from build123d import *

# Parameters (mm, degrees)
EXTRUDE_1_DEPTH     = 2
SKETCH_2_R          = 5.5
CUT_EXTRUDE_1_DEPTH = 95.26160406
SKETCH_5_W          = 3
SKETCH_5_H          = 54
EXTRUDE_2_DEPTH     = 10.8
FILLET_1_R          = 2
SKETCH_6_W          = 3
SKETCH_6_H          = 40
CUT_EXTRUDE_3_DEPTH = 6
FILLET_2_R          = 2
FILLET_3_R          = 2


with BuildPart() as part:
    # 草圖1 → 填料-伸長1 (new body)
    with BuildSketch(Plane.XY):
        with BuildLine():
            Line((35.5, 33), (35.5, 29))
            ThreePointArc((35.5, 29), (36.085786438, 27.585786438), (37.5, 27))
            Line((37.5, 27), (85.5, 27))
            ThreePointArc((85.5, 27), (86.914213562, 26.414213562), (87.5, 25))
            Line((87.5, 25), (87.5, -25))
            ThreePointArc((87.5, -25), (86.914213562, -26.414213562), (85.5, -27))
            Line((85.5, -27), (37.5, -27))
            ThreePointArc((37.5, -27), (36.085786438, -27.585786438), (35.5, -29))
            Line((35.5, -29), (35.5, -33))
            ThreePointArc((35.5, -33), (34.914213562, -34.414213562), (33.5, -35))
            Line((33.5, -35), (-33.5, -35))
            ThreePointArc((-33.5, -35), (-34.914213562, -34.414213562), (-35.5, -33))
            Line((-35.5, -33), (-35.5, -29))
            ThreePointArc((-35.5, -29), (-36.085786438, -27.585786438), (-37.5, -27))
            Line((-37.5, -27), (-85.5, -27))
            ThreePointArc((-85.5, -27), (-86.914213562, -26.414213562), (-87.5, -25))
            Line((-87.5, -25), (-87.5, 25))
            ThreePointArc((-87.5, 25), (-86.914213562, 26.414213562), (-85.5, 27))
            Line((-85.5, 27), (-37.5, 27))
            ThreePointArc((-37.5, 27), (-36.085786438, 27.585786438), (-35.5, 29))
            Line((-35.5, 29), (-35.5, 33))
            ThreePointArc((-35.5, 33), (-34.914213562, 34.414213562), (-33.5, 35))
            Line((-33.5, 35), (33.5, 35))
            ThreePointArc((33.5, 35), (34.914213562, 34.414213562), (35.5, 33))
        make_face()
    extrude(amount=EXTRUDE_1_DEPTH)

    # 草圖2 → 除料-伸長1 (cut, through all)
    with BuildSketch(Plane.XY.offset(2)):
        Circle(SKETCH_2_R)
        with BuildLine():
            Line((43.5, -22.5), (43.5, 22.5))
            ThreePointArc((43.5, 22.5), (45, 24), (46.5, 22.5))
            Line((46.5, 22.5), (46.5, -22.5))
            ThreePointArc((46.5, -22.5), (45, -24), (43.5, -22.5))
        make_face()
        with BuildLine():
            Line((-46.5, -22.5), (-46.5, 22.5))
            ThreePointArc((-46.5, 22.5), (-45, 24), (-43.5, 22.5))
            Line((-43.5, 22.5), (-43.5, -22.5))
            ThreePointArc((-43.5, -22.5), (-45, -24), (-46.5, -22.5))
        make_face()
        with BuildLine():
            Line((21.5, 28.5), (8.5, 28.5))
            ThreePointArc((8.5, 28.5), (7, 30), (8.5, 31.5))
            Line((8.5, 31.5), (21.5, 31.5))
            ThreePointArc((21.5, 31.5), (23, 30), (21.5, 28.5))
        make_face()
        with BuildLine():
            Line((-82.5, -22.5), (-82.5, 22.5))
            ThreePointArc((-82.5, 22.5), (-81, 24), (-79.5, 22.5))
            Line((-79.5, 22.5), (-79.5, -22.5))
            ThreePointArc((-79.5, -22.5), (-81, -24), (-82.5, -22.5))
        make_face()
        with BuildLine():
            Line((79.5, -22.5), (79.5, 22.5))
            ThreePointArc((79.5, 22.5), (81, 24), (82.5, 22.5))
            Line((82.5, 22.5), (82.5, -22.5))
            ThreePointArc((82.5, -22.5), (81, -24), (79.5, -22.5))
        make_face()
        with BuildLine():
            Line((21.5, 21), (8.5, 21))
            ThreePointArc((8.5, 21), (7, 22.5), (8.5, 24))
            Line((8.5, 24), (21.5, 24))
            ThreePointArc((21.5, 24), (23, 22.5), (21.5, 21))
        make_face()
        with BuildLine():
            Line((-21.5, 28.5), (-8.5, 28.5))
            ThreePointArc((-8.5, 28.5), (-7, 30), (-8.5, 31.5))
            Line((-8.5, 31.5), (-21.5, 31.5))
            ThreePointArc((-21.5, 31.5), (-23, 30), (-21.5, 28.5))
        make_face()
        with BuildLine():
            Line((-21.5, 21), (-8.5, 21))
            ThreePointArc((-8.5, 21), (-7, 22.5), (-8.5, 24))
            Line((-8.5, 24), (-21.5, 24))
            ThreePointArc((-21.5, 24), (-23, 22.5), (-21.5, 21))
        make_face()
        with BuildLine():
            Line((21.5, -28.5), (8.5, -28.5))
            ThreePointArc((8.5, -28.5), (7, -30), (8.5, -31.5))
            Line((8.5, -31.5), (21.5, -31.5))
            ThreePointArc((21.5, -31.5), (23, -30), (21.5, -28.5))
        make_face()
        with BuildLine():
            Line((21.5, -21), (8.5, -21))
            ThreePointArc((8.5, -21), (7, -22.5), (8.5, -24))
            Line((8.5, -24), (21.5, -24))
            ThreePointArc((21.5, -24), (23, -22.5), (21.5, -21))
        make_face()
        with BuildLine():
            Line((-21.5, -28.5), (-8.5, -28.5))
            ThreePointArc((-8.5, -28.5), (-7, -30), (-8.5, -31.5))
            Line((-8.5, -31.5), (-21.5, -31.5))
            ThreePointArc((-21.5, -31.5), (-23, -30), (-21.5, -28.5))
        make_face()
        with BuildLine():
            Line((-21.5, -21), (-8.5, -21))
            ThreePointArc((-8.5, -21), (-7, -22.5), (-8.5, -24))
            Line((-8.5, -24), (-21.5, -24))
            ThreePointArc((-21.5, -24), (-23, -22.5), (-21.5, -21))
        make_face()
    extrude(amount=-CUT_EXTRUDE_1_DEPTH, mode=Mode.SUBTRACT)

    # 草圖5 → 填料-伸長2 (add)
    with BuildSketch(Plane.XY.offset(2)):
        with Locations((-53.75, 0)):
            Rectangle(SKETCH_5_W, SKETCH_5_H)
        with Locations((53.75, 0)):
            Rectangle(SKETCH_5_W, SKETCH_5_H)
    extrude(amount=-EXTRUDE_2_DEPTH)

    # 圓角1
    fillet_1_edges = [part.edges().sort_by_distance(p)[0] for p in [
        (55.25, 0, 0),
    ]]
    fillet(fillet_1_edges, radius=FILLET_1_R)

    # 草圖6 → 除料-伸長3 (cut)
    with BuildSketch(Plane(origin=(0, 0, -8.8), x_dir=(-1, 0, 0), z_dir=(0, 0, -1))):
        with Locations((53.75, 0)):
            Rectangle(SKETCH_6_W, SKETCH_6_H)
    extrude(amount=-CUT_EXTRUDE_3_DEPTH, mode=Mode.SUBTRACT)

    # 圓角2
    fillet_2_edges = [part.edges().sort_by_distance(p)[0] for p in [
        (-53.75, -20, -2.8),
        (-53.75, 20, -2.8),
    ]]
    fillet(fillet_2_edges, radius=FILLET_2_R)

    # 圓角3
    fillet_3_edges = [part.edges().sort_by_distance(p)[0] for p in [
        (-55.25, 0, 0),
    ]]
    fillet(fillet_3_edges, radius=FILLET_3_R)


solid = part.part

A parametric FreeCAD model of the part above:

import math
import FreeCAD as App
import Part
import Sketcher
Q = App.Units.Quantity


def edges_at(feature, points):
    """Names of the edges that pass closest to the given points."""
    edges = feature.Shape.Edges
    near = lambda p: min(range(len(edges)), key=lambda i: edges[i].distToShape(Part.Vertex(*p))[0])
    return sorted({f"Edge{near(p) + 1}" for p in points})

doc = App.newDocument("Part")
params = doc.addObject("Spreadsheet::Sheet", "Params")
for row, (alias, value) in enumerate([
    ("sketch1_radius", "2 mm"),
    ("sketch1_width", "67 mm"),
    ("sketch1_width2", "48 mm"),
    ("sketch1_height", "4 mm"),
    ("sketch1_height2", "50 mm"),
    ("pad1_length", "2 mm"),
    ("sketch2_diameter", "11 mm"),
    ("sketch2_radius", "1.5 mm"),
    ("sketch2_width", "13 mm"),
    ("sketch2_height", "45 mm"),
    ("sketch3_width", "3 mm"),
    ("sketch3_height", "54 mm"),
    ("pad2_length", "10.8 mm"),
    ("fillet_radius", "2 mm"),
    ("sketch4_width", "3 mm"),
    ("sketch4_height", "40 mm"),
    ("pocket2_length", "6 mm"),
    ("fillet2_radius", "2 mm"),
    ("fillet3_radius", "2 mm"),
], start=1):
    params.set(f"A{row}", alias)
    params.set(f"B{row}", "=" + value)
    params.setAlias(f"B{row}", alias)

body = doc.addObject("PartDesign::Body", "Body")

# Sketch on XY plane
sketch1 = body.newObject("Sketcher::SketchObject", "Sketch")
sketch1.AttachmentSupport = (doc.getObject("XY_Plane"), [""])
sketch1.MapMode = "FlatFace"
sketch1.addGeometry([
    Part.LineSegment(App.Vector(35.5, 29, 0), App.Vector(35.5, 33, 0)),  # 0
    Part.ArcOfCircle(Part.Circle(App.Vector(33.5, 33, 0), App.Vector(0, 0, 1), 2), math.radians(0), math.radians(90)),  # 1
    Part.LineSegment(App.Vector(33.5, 35, 0), App.Vector(-33.5, 35, 0)),  # 2
    Part.ArcOfCircle(Part.Circle(App.Vector(-33.5, 33, 0), App.Vector(0, 0, 1), 2), math.radians(90), math.radians(180)),  # 3
    Part.LineSegment(App.Vector(-35.5, 33, 0), App.Vector(-35.5, 29, 0)),  # 4
    Part.ArcOfCircle(Part.Circle(App.Vector(-37.5, 29, 0), App.Vector(0, 0, 1), 2), math.radians(-90), math.radians(0)),  # 5
    Part.LineSegment(App.Vector(-37.5, 27, 0), App.Vector(-85.5, 27, 0)),  # 6
    Part.ArcOfCircle(Part.Circle(App.Vector(-85.5, 25, 0), App.Vector(0, 0, 1), 2), math.radians(90), math.radians(180)),  # 7
    Part.LineSegment(App.Vector(-87.5, 25, 0), App.Vector(-87.5, -25, 0)),  # 8
    Part.ArcOfCircle(Part.Circle(App.Vector(-85.5, -25, 0), App.Vector(0, 0, 1), 2), math.radians(-180), math.radians(-90)),  # 9
    Part.LineSegment(App.Vector(-85.5, -27, 0), App.Vector(-37.5, -27, 0)),  # 10
    Part.ArcOfCircle(Part.Circle(App.Vector(-37.5, -29, 0), App.Vector(0, 0, 1), 2), math.radians(0), math.radians(90)),  # 11
    Part.LineSegment(App.Vector(-35.5, -29, 0), App.Vector(-35.5, -33, 0)),  # 12
    Part.ArcOfCircle(Part.Circle(App.Vector(-33.5, -33, 0), App.Vector(0, 0, 1), 2), math.radians(-180), math.radians(-90)),  # 13
    Part.LineSegment(App.Vector(-33.5, -35, 0), App.Vector(33.5, -35, 0)),  # 14
    Part.ArcOfCircle(Part.Circle(App.Vector(33.5, -33, 0), App.Vector(0, 0, 1), 2), math.radians(-90), math.radians(0)),  # 15
    Part.LineSegment(App.Vector(35.5, -33, 0), App.Vector(35.5, -29, 0)),  # 16
    Part.ArcOfCircle(Part.Circle(App.Vector(37.5, -29, 0), App.Vector(0, 0, 1), 2), math.radians(90), math.radians(180)),  # 17
    Part.LineSegment(App.Vector(37.5, -27, 0), App.Vector(85.5, -27, 0)),  # 18
    Part.ArcOfCircle(Part.Circle(App.Vector(85.5, -25, 0), App.Vector(0, 0, 1), 2), math.radians(-90), math.radians(0)),  # 19
    Part.LineSegment(App.Vector(87.5, -25, 0), App.Vector(87.5, 25, 0)),  # 20
    Part.ArcOfCircle(Part.Circle(App.Vector(85.5, 25, 0), App.Vector(0, 0, 1), 2), math.radians(0), math.radians(90)),  # 21
    Part.LineSegment(App.Vector(85.5, 27, 0), App.Vector(37.5, 27, 0)),  # 22
    Part.ArcOfCircle(Part.Circle(App.Vector(37.5, 29, 0), App.Vector(0, 0, 1), 2), math.radians(-180), math.radians(-90)),  # 23
], False)
sketch1.addConstraint([
    Sketcher.Constraint("Tangent", 0, 2, 1, 1),
    Sketcher.Constraint("Tangent", 1, 2, 2, 1),
    Sketcher.Constraint("Tangent", 2, 2, 3, 1),
    Sketcher.Constraint("Tangent", 3, 2, 4, 1),
    Sketcher.Constraint("Tangent", 4, 2, 5, 2),
    Sketcher.Constraint("Tangent", 5, 1, 6, 1),
    Sketcher.Constraint("Tangent", 6, 2, 7, 1),
    Sketcher.Constraint("Tangent", 7, 2, 8, 1),
    Sketcher.Constraint("Tangent", 8, 2, 9, 1),
    Sketcher.Constraint("Tangent", 9, 2, 10, 1),
    Sketcher.Constraint("Tangent", 10, 2, 11, 2),
    Sketcher.Constraint("Tangent", 11, 1, 12, 1),
    Sketcher.Constraint("Tangent", 12, 2, 13, 1),
    Sketcher.Constraint("Tangent", 13, 2, 14, 1),
    Sketcher.Constraint("Tangent", 14, 2, 15, 1),
    Sketcher.Constraint("Tangent", 15, 2, 16, 1),
    Sketcher.Constraint("Tangent", 16, 2, 17, 2),
    Sketcher.Constraint("Tangent", 17, 1, 18, 1),
    Sketcher.Constraint("Tangent", 18, 2, 19, 1),
    Sketcher.Constraint("Tangent", 19, 2, 20, 1),
    Sketcher.Constraint("Tangent", 20, 2, 21, 1),
    Sketcher.Constraint("Tangent", 21, 2, 22, 1),
    Sketcher.Constraint("Tangent", 22, 2, 23, 2),
    Sketcher.Constraint("Tangent", 23, 1, 0, 1),
    Sketcher.Constraint("Vertical", 0),
    Sketcher.Constraint("Horizontal", 2),
    Sketcher.Constraint("Vertical", 4),
    Sketcher.Constraint("Horizontal", 6),
    Sketcher.Constraint("Vertical", 8),
    Sketcher.Constraint("Horizontal", 10),
    Sketcher.Constraint("Vertical", 12),
    Sketcher.Constraint("Horizontal", 14),
    Sketcher.Constraint("Vertical", 16),
    Sketcher.Constraint("Horizontal", 18),
    Sketcher.Constraint("Vertical", 20),
    Sketcher.Constraint("Horizontal", 22),
    Sketcher.Constraint("Equal", 1, 3),
    Sketcher.Constraint("Equal", 3, 5),
    Sketcher.Constraint("Equal", 5, 7),
    Sketcher.Constraint("Equal", 7, 9),
    Sketcher.Constraint("Equal", 9, 11),
    Sketcher.Constraint("Equal", 11, 13),
    Sketcher.Constraint("Equal", 13, 15),
    Sketcher.Constraint("Equal", 15, 17),
    Sketcher.Constraint("Equal", 17, 19),
    Sketcher.Constraint("Equal", 19, 21),
    Sketcher.Constraint("Equal", 21, 23),
    Sketcher.Constraint("Symmetric", 1, 3, 13, 3, -1, 1),
    Sketcher.Constraint("Symmetric", 5, 3, 17, 3, -1, 1),
    Sketcher.Constraint("Symmetric", 9, 3, 21, 3, -1, 1),
    Sketcher.Constraint("Symmetric", 11, 3, 17, 3, -2),
    Sketcher.Constraint("Radius", 1, Q("2 mm")),
    Sketcher.Constraint("DistanceX", 2, 2, 2, 1, Q("67 mm")),
    Sketcher.Constraint("DistanceX", 6, 2, 6, 1, Q("48 mm")),
    Sketcher.Constraint("DistanceY", 0, 1, 0, 2, Q("4 mm")),
    Sketcher.Constraint("DistanceY", 8, 2, 8, 1, Q("50 mm")),
])
sketch1.setExpression("Constraints[51]", "Params.sketch1_radius")
sketch1.setExpression("Constraints[52]", "Params.sketch1_width")
sketch1.setExpression("Constraints[53]", "Params.sketch1_width2")
sketch1.setExpression("Constraints[54]", "Params.sketch1_height")
sketch1.setExpression("Constraints[55]", "Params.sketch1_height2")
pad1 = body.newObject("PartDesign::Pad", "Pad")
pad1.Profile = sketch1
pad1.setExpression("Length", "Params.pad1_length")

# Sketch on XY plane
sketch2 = body.newObject("Sketcher::SketchObject", "Sketch001")
sketch2.AttachmentSupport = (doc.getObject("XY_Plane"), [""])
sketch2.MapMode = "FlatFace"
sketch2.AttachmentOffset = App.Placement(App.Vector(0, 0, 2), App.Rotation())
sketch2.addGeometry([
    Part.Circle(App.Vector(0, 0, 0), App.Vector(0, 0, 1), 5.5),  # 0
    Part.LineSegment(App.Vector(43.5, 22.5, 0), App.Vector(43.5, -22.5, 0)),  # 1
    Part.ArcOfCircle(Part.Circle(App.Vector(45, -22.5, 0), App.Vector(0, 0, 1), 1.5), math.radians(180), math.radians(360)),  # 2
    Part.LineSegment(App.Vector(46.5, -22.5, 0), App.Vector(46.5, 22.5, 0)),  # 3
    Part.ArcOfCircle(Part.Circle(App.Vector(45, 22.5, 0), App.Vector(0, 0, 1), 1.5), math.radians(0), math.radians(180)),  # 4
    Part.LineSegment(App.Vector(-46.5, 22.5, 0), App.Vector(-46.5, -22.5, 0)),  # 5
    Part.ArcOfCircle(Part.Circle(App.Vector(-45, -22.5, 0), App.Vector(0, 0, 1), 1.5), math.radians(180), math.radians(360)),  # 6
    Part.LineSegment(App.Vector(-43.5, -22.5, 0), App.Vector(-43.5, 22.5, 0)),  # 7
    Part.ArcOfCircle(Part.Circle(App.Vector(-45, 22.5, 0), App.Vector(0, 0, 1), 1.5), math.radians(0), math.radians(180)),  # 8
    Part.LineSegment(App.Vector(8.5, 28.5, 0), App.Vector(21.5, 28.5, 0)),  # 9
    Part.ArcOfCircle(Part.Circle(App.Vector(21.5, 30, 0), App.Vector(0, 0, 1), 1.5), math.radians(-90), math.radians(90)),  # 10
    Part.LineSegment(App.Vector(21.5, 31.5, 0), App.Vector(8.5, 31.5, 0)),  # 11
    Part.ArcOfCircle(Part.Circle(App.Vector(8.5, 30, 0), App.Vector(0, 0, 1), 1.5), math.radians(90), math.radians(270)),  # 12
    Part.LineSegment(App.Vector(-82.5, 22.5, 0), App.Vector(-82.5, -22.5, 0)),  # 13
    Part.ArcOfCircle(Part.Circle(App.Vector(-81, -22.5, 0), App.Vector(0, 0, 1), 1.5), math.radians(180), math.radians(360)),  # 14
    Part.LineSegment(App.Vector(-79.5, -22.5, 0), App.Vector(-79.5, 22.5, 0)),  # 15
    Part.ArcOfCircle(Part.Circle(App.Vector(-81, 22.5, 0), App.Vector(0, 0, 1), 1.5), math.radians(0), math.radians(180)),  # 16
    Part.LineSegment(App.Vector(79.5, 22.5, 0), App.Vector(79.5, -22.5, 0)),  # 17
    Part.ArcOfCircle(Part.Circle(App.Vector(81, -22.5, 0), App.Vector(0, 0, 1), 1.5), math.radians(180), math.radians(360)),  # 18
    Part.LineSegment(App.Vector(82.5, -22.5, 0), App.Vector(82.5, 22.5, 0)),  # 19
    Part.ArcOfCircle(Part.Circle(App.Vector(81, 22.5, 0), App.Vector(0, 0, 1), 1.5), math.radians(0), math.radians(180)),  # 20
    Part.LineSegment(App.Vector(8.5, 21, 0), App.Vector(21.5, 21, 0)),  # 21
    Part.ArcOfCircle(Part.Circle(App.Vector(21.5, 22.5, 0), App.Vector(0, 0, 1), 1.5), math.radians(-90), math.radians(90)),  # 22
    Part.LineSegment(App.Vector(21.5, 24, 0), App.Vector(8.5, 24, 0)),  # 23
    Part.ArcOfCircle(Part.Circle(App.Vector(8.5, 22.5, 0), App.Vector(0, 0, 1), 1.5), math.radians(90), math.radians(270)),  # 24
    Part.LineSegment(App.Vector(-21.5, 28.5, 0), App.Vector(-8.5, 28.5, 0)),  # 25
    Part.ArcOfCircle(Part.Circle(App.Vector(-8.5, 30, 0), App.Vector(0, 0, 1), 1.5), math.radians(-90), math.radians(90)),  # 26
    Part.LineSegment(App.Vector(-8.5, 31.5, 0), App.Vector(-21.5, 31.5, 0)),  # 27
    Part.ArcOfCircle(Part.Circle(App.Vector(-21.5, 30, 0), App.Vector(0, 0, 1), 1.5), math.radians(90), math.radians(270)),  # 28
    Part.LineSegment(App.Vector(-21.5, 21, 0), App.Vector(-8.5, 21, 0)),  # 29
    Part.ArcOfCircle(Part.Circle(App.Vector(-8.5, 22.5, 0), App.Vector(0, 0, 1), 1.5), math.radians(-90), math.radians(90)),  # 30
    Part.LineSegment(App.Vector(-8.5, 24, 0), App.Vector(-21.5, 24, 0)),  # 31
    Part.ArcOfCircle(Part.Circle(App.Vector(-21.5, 22.5, 0), App.Vector(0, 0, 1), 1.5), math.radians(90), math.radians(270)),  # 32
    Part.LineSegment(App.Vector(21.5, -28.5, 0), App.Vector(8.5, -28.5, 0)),  # 33
    Part.ArcOfCircle(Part.Circle(App.Vector(8.5, -30, 0), App.Vector(0, 0, 1), 1.5), math.radians(90), math.radians(270)),  # 34
    Part.LineSegment(App.Vector(8.5, -31.5, 0), App.Vector(21.5, -31.5, 0)),  # 35
    Part.ArcOfCircle(Part.Circle(App.Vector(21.5, -30, 0), App.Vector(0, 0, 1), 1.5), math.radians(-90), math.radians(90)),  # 36
    Part.LineSegment(App.Vector(21.5, -21, 0), App.Vector(8.5, -21, 0)),  # 37
    Part.ArcOfCircle(Part.Circle(App.Vector(8.5, -22.5, 0), App.Vector(0, 0, 1), 1.5), math.radians(90), math.radians(270)),  # 38
    Part.LineSegment(App.Vector(8.5, -24, 0), App.Vector(21.5, -24, 0)),  # 39
    Part.ArcOfCircle(Part.Circle(App.Vector(21.5, -22.5, 0), App.Vector(0, 0, 1), 1.5), math.radians(-90), math.radians(90)),  # 40
    Part.LineSegment(App.Vector(-8.5, -28.5, 0), App.Vector(-21.5, -28.5, 0)),  # 41
    Part.ArcOfCircle(Part.Circle(App.Vector(-21.5, -30, 0), App.Vector(0, 0, 1), 1.5), math.radians(90), math.radians(270)),  # 42
    Part.LineSegment(App.Vector(-21.5, -31.5, 0), App.Vector(-8.5, -31.5, 0)),  # 43
    Part.ArcOfCircle(Part.Circle(App.Vector(-8.5, -30, 0), App.Vector(0, 0, 1), 1.5), math.radians(-90), math.radians(90)),  # 44
    Part.LineSegment(App.Vector(-8.5, -21, 0), App.Vector(-21.5, -21, 0)),  # 45
    Part.ArcOfCircle(Part.Circle(App.Vector(-21.5, -22.5, 0), App.Vector(0, 0, 1), 1.5), math.radians(90), math.radians(270)),  # 46
    Part.LineSegment(App.Vector(-21.5, -24, 0), App.Vector(-8.5, -24, 0)),  # 47
    Part.ArcOfCircle(Part.Circle(App.Vector(-8.5, -22.5, 0), App.Vector(0, 0, 1), 1.5), math.radians(-90), math.radians(90)),  # 48
], False)
sketch2.addConstraint([
    Sketcher.Constraint("Tangent", 1, 2, 2, 1),
    Sketcher.Constraint("Tangent", 2, 2, 3, 1),
    Sketcher.Constraint("Tangent", 3, 2, 4, 1),
    Sketcher.Constraint("Tangent", 4, 2, 1, 1),
    Sketcher.Constraint("Tangent", 5, 2, 6, 1),
    Sketcher.Constraint("Tangent", 6, 2, 7, 1),
    Sketcher.Constraint("Tangent", 7, 2, 8, 1),
    Sketcher.Constraint("Tangent", 8, 2, 5, 1),
    Sketcher.Constraint("Tangent", 9, 2, 10, 1),
    Sketcher.Constraint("Tangent", 10, 2, 11, 1),
    Sketcher.Constraint("Tangent", 11, 2, 12, 1),
    Sketcher.Constraint("Tangent", 12, 2, 9, 1),
    Sketcher.Constraint("Tangent", 13, 2, 14, 1),
    Sketcher.Constraint("Tangent", 14, 2, 15, 1),
    Sketcher.Constraint("Tangent", 15, 2, 16, 1),
    Sketcher.Constraint("Tangent", 16, 2, 13, 1),
    Sketcher.Constraint("Tangent", 17, 2, 18, 1),
    Sketcher.Constraint("Tangent", 18, 2, 19, 1),
    Sketcher.Constraint("Tangent", 19, 2, 20, 1),
    Sketcher.Constraint("Tangent", 20, 2, 17, 1),
    Sketcher.Constraint("Tangent", 21, 2, 22, 1),
    Sketcher.Constraint("Tangent", 22, 2, 23, 1),
    Sketcher.Constraint("Tangent", 23, 2, 24, 1),
    Sketcher.Constraint("Tangent", 24, 2, 21, 1),
    Sketcher.Constraint("Tangent", 25, 2, 26, 1),
    Sketcher.Constraint("Tangent", 26, 2, 27, 1),
    Sketcher.Constraint("Tangent", 27, 2, 28, 1),
    Sketcher.Constraint("Tangent", 28, 2, 25, 1),
    Sketcher.Constraint("Tangent", 29, 2, 30, 1),
    Sketcher.Constraint("Tangent", 30, 2, 31, 1),
    Sketcher.Constraint("Tangent", 31, 2, 32, 1),
    Sketcher.Constraint("Tangent", 32, 2, 29, 1),
    Sketcher.Constraint("Tangent", 33, 2, 34, 1),
    Sketcher.Constraint("Tangent", 34, 2, 35, 1),
    Sketcher.Constraint("Tangent", 35, 2, 36, 1),
    Sketcher.Constraint("Tangent", 36, 2, 33, 1),
    Sketcher.Constraint("Tangent", 37, 2, 38, 1),
    Sketcher.Constraint("Tangent", 38, 2, 39, 1),
    Sketcher.Constraint("Tangent", 39, 2, 40, 1),
    Sketcher.Constraint("Tangent", 40, 2, 37, 1),
    Sketcher.Constraint("Tangent", 41, 2, 42, 1),
    Sketcher.Constraint("Tangent", 42, 2, 43, 1),
    Sketcher.Constraint("Tangent", 43, 2, 44, 1),
    Sketcher.Constraint("Tangent", 44, 2, 41, 1),
    Sketcher.Constraint("Tangent", 45, 2, 46, 1),
    Sketcher.Constraint("Tangent", 46, 2, 47, 1),
    Sketcher.Constraint("Tangent", 47, 2, 48, 1),
    Sketcher.Constraint("Tangent", 48, 2, 45, 1),
    Sketcher.Constraint("Vertical", 1),
    Sketcher.Constraint("Vertical", 3),
    Sketcher.Constraint("Vertical", 5),
    Sketcher.Constraint("Vertical", 7),
    Sketcher.Constraint("Horizontal", 9),
    Sketcher.Constraint("Horizontal", 11),
    Sketcher.Constraint("Vertical", 13),
    Sketcher.Constraint("Vertical", 15),
    Sketcher.Constraint("Vertical", 17),
    Sketcher.Constraint("Vertical", 19),
    Sketcher.Constraint("Horizontal", 21),
    Sketcher.Constraint("Horizontal", 23),
    Sketcher.Constraint("Horizontal", 25),
    Sketcher.Constraint("Horizontal", 27),
    Sketcher.Constraint("Horizontal", 29),
    Sketcher.Constraint("Horizontal", 31),
    Sketcher.Constraint("Horizontal", 33),
    Sketcher.Constraint("Horizontal", 35),
    Sketcher.Constraint("Horizontal", 37),
    Sketcher.Constraint("Horizontal", 39),
    Sketcher.Constraint("Horizontal", 41),
    Sketcher.Constraint("Horizontal", 43),
    Sketcher.Constraint("Horizontal", 45),
    Sketcher.Constraint("Horizontal", 47),
    Sketcher.Constraint("Coincident", 0, 3, -1, 1),
    Sketcher.Constraint("Equal", 4, 6),
    Sketcher.Constraint("Equal", 8, 10),
    Sketcher.Constraint("Equal", 12, 14),
    Sketcher.Constraint("Equal", 16, 18),
    Sketcher.Constraint("Equal", 20, 22),
    Sketcher.Constraint("Equal", 24, 26),
    Sketcher.Constraint("Equal", 28, 30),
    Sketcher.Constraint("Equal", 32, 34),
    Sketcher.Constraint("Equal", 36, 38),
    Sketcher.Constraint("Equal", 40, 42),
    Sketcher.Constraint("Equal", 44, 46),
    Sketcher.Constraint("Symmetric", 4, 3, 6, 3, -1, 1),
    Sketcher.Constraint("Symmetric", 16, 3, 18, 3, -1, 1),
    Sketcher.Constraint("Symmetric", 26, 3, 34, 3, -1, 1),
    Sketcher.Constraint("Symmetric", 30, 3, 38, 3, -1, 1),
    Sketcher.Constraint("Symmetric", 10, 3, 42, 3, -1, 1),
    Sketcher.Constraint("Symmetric", 22, 3, 46, 3, -1, 1),
    Sketcher.Constraint("Symmetric", 12, 3, 26, 3, -2),
    Sketcher.Constraint("Symmetric", 24, 3, 30, 3, -2),
    Sketcher.Constraint("Horizontal", 2, 3, 6, 3),
    Sketcher.Constraint("Horizontal", 4, 3, 8, 3),
    Sketcher.Constraint("Horizontal", 6, 3, 14, 3),
    Sketcher.Constraint("Horizontal", 8, 3, 16, 3),
    Sketcher.Constraint("Horizontal", 16, 3, 20, 3),
    Sketcher.Constraint("Horizontal", 20, 3, 22, 3),
    Sketcher.Constraint("Vertical", 10, 3, 22, 3),
    Sketcher.Constraint("Vertical", 12, 3, 24, 3),
    Sketcher.Constraint("Vertical", 28, 3, 32, 3),
    Sketcher.Constraint("Vertical", 22, 3, 36, 3),
    Sketcher.Constraint("Vertical", 36, 3, 40, 3),
    Sketcher.Constraint("Vertical", 32, 3, 42, 3),
    Sketcher.Constraint("Vertical", 30, 3, 44, 3),
    Sketcher.Constraint("Vertical", 44, 3, 48, 3),
    Sketcher.Constraint("Diameter", 0, Q("11 mm")),
    Sketcher.Constraint("Radius", 2, Q("1.5 mm")),
    Sketcher.Constraint("DistanceX", 9, 1, 9, 2, Q("13 mm")),
    Sketcher.Constraint("DistanceY", 1, 2, 1, 1, Q("45 mm")),
    Sketcher.Constraint("DistanceX", -1, 1, 2, 3, Q("45 mm")),
    Sketcher.Constraint("DistanceY", -1, 1, 10, 3, Q("30 mm")),
    Sketcher.Constraint("DistanceX", 14, 3, -1, 1, Q("81 mm")),
    Sketcher.Constraint("DistanceX", -1, 1, 10, 3, Q("21.5 mm")),
])
sketch2.setExpression("Constraints[106]", "Params.sketch2_diameter")
sketch2.setExpression("Constraints[107]", "Params.sketch2_radius")
sketch2.setExpression("Constraints[108]", "Params.sketch2_width")
sketch2.setExpression("Constraints[109]", "Params.sketch2_height")
pocket1 = body.newObject("PartDesign::Pocket", "Pocket")
pocket1.Profile = sketch2
pocket1.Type = "ThroughAll"

# Sketch on XY plane
sketch3 = body.newObject("Sketcher::SketchObject", "Sketch002")
sketch3.AttachmentSupport = (doc.getObject("XY_Plane"), [""])
sketch3.MapMode = "FlatFace"
sketch3.AttachmentOffset = App.Placement(App.Vector(0, 0, 2), App.Rotation())
sketch3.addGeometry([
    Part.LineSegment(App.Vector(-55.2, 27, 0), App.Vector(-55.2, -27, 0)),  # 0
    Part.LineSegment(App.Vector(-55.2, -27, 0), App.Vector(-52.2, -27, 0)),  # 1
    Part.LineSegment(App.Vector(-52.2, -27, 0), App.Vector(-52.2, 27, 0)),  # 2
    Part.LineSegment(App.Vector(-52.2, 27, 0), App.Vector(-55.2, 27, 0)),  # 3
    Part.LineSegment(App.Vector(52.2, 27, 0), App.Vector(52.2, -27, 0)),  # 4
    Part.LineSegment(App.Vector(52.2, -27, 0), App.Vector(55.2, -27, 0)),  # 5
    Part.LineSegment(App.Vector(55.2, -27, 0), App.Vector(55.2, 27, 0)),  # 6
    Part.LineSegment(App.Vector(55.2, 27, 0), App.Vector(52.2, 27, 0)),  # 7
], False)
sketch3.addConstraint([
    Sketcher.Constraint("Coincident", 0, 2, 1, 1),
    Sketcher.Constraint("Coincident", 1, 2, 2, 1),
    Sketcher.Constraint("Coincident", 2, 2, 3, 1),
    Sketcher.Constraint("Coincident", 3, 2, 0, 1),
    Sketcher.Constraint("Coincident", 4, 2, 5, 1),
    Sketcher.Constraint("Coincident", 5, 2, 6, 1),
    Sketcher.Constraint("Coincident", 6, 2, 7, 1),
    Sketcher.Constraint("Coincident", 7, 2, 4, 1),
    Sketcher.Constraint("Vertical", 0),
    Sketcher.Constraint("Horizontal", 1),
    Sketcher.Constraint("Vertical", 2),
    Sketcher.Constraint("Horizontal", 3),
    Sketcher.Constraint("Vertical", 4),
    Sketcher.Constraint("Horizontal", 5),
    Sketcher.Constraint("Vertical", 6),
    Sketcher.Constraint("Horizontal", 7),
    Sketcher.Constraint("Symmetric", 2, 2, 4, 2, -1, 1),
    Sketcher.Constraint("Symmetric", 0, 2, 6, 2, -1, 1),
    Sketcher.Constraint("Horizontal", 1, 2, 4, 2),
    Sketcher.Constraint("DistanceX", 1, 1, 1, 2, Q("3 mm")),
    Sketcher.Constraint("DistanceY", 0, 2, 0, 1, Q("54 mm")),
    Sketcher.Constraint("DistanceX", 1, 2, 4, 2, Q("104.5 mm")),
])
sketch3.setExpression("Constraints[19]", "Params.sketch3_width")
sketch3.setExpression("Constraints[20]", "Params.sketch3_height")
pad2 = body.newObject("PartDesign::Pad", "Pad001")
pad2.Profile = sketch3
pad2.setExpression("Length", "Params.pad2_length")
pad2.Reversed = True
doc.recompute()

fillet = body.newObject("PartDesign::Fillet", "Fillet")
fillet.Base = (pad2, edges_at(pad2, [(55.25, 0, 0)]))
fillet.setExpression("Radius", "Params.fillet_radius")

# Sketch on XY plane
sketch4 = body.newObject("Sketcher::SketchObject", "Sketch003")
sketch4.AttachmentSupport = (doc.getObject("XY_Plane"), [""])
sketch4.MapMode = "FlatFace"
sketch4.AttachmentOffset = App.Placement(App.Vector(0, 0, -8.8), App.Rotation())
sketch4.addGeometry([
    Part.LineSegment(App.Vector(-52.2, 20, 0), App.Vector(-52.2, -20, 0)),
    Part.LineSegment(App.Vector(-52.2, -20, 0), App.Vector(-55.2, -20, 0)),
    Part.LineSegment(App.Vector(-55.2, -20, 0), App.Vector(-55.2, 20, 0)),
    Part.LineSegment(App.Vector(-55.2, 20, 0), App.Vector(-52.2, 20, 0)),
], False)
sketch4.addConstraint([
    Sketcher.Constraint("Coincident", 0, 2, 1, 1),
    Sketcher.Constraint("Coincident", 1, 2, 2, 1),
    Sketcher.Constraint("Coincident", 2, 2, 3, 1),
    Sketcher.Constraint("Coincident", 3, 2, 0, 1),
    Sketcher.Constraint("Vertical", 0),
    Sketcher.Constraint("Horizontal", 1),
    Sketcher.Constraint("Vertical", 2),
    Sketcher.Constraint("Horizontal", 3),
    Sketcher.Constraint("DistanceX", 1, 2, 1, 1, Q("3 mm")),
    Sketcher.Constraint("DistanceY", 0, 2, 0, 1, Q("40 mm")),
    Sketcher.Constraint("DistanceY", 0, 2, -1, 1, Q("20 mm")),
    Sketcher.Constraint("DistanceX", 0, 2, -1, 1, Q("52.25 mm")),
])
sketch4.setExpression("Constraints[8]", "Params.sketch4_width")
sketch4.setExpression("Constraints[9]", "Params.sketch4_height")
pocket2 = body.newObject("PartDesign::Pocket", "Pocket001")
pocket2.Profile = sketch4
pocket2.setExpression("Length", "Params.pocket2_length")
pocket2.Reversed = True
doc.recompute()

fillet2 = body.newObject("PartDesign::Fillet", "Fillet001")
fillet2.Base = (pocket2, edges_at(pocket2, [(-53.75, -20, -2.8), (-53.75, 20, -2.8)]))
fillet2.setExpression("Radius", "Params.fillet2_radius")
doc.recompute()

fillet3 = body.newObject("PartDesign::Fillet", "Fillet002")
fillet3.Base = (fillet2, edges_at(fillet2, [(-55.25, 0, 0)]))
fillet3.setExpression("Radius", "Params.fillet3_radius")

doc.recompute()
